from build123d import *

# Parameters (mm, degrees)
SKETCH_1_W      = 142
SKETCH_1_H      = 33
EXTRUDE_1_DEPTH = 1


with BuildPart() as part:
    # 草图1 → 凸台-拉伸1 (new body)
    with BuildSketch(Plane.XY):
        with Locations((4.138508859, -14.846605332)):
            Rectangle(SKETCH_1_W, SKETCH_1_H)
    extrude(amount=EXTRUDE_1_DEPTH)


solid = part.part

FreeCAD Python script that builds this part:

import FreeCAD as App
import Part
import Sketcher

V = App.Vector

doc = App.newDocument("Part")
body = doc.addObject("PartDesign::Body", "Body")

# Sketch on XY plane
sketch1 = body.newObject("Sketcher::SketchObject", "Sketch")
sketch1.AttachmentSupport = (doc.getObject("XY_Plane"), [""])
sketch1.MapMode = "FlatFace"
sketch1.addGeometry([
    Part.LineSegment(V(-67, 2, 0), V(-67, -31, 0)),
    Part.LineSegment(V(-67, -31, 0), V(75, -31, 0)),
    Part.LineSegment(V(75, -31, 0), V(75, 2, 0)),
    Part.LineSegment(V(75, 2, 0), V(-67, 2, 0)),
], False)
sketch1.addConstraint([
    Sketcher.Constraint("Coincident", 0, 2, 1, 1),
    Sketcher.Constraint("Coincident", 1, 2, 2, 1),
    Sketcher.Constraint("Coincident", 2, 2, 3, 1),
    Sketcher.Constraint("Coincident", 3, 2, 0, 1),
    Sketcher.Constraint("Vertical", 0),
    Sketcher.Constraint("Horizontal", 1),
    Sketcher.Constraint("Vertical", 2),
    Sketcher.Constraint("Horizontal", 3),
    Sketcher.Constraint("DistanceX", 1, 1, 1, 2, 142.0),
    Sketcher.Constraint("DistanceY", 0, 2, 0, 1, 33.0),
    Sketcher.Constraint("DistanceX", 0, 2, -1, 1, 66.861491),
    Sketcher.Constraint("DistanceY", 0, 2, -1, 1, 31.346605),
])
pad1 = body.newObject("PartDesign::Pad", "Pad")
pad1.Profile = sketch1
pad1.Length = 1

doc.recompute()
